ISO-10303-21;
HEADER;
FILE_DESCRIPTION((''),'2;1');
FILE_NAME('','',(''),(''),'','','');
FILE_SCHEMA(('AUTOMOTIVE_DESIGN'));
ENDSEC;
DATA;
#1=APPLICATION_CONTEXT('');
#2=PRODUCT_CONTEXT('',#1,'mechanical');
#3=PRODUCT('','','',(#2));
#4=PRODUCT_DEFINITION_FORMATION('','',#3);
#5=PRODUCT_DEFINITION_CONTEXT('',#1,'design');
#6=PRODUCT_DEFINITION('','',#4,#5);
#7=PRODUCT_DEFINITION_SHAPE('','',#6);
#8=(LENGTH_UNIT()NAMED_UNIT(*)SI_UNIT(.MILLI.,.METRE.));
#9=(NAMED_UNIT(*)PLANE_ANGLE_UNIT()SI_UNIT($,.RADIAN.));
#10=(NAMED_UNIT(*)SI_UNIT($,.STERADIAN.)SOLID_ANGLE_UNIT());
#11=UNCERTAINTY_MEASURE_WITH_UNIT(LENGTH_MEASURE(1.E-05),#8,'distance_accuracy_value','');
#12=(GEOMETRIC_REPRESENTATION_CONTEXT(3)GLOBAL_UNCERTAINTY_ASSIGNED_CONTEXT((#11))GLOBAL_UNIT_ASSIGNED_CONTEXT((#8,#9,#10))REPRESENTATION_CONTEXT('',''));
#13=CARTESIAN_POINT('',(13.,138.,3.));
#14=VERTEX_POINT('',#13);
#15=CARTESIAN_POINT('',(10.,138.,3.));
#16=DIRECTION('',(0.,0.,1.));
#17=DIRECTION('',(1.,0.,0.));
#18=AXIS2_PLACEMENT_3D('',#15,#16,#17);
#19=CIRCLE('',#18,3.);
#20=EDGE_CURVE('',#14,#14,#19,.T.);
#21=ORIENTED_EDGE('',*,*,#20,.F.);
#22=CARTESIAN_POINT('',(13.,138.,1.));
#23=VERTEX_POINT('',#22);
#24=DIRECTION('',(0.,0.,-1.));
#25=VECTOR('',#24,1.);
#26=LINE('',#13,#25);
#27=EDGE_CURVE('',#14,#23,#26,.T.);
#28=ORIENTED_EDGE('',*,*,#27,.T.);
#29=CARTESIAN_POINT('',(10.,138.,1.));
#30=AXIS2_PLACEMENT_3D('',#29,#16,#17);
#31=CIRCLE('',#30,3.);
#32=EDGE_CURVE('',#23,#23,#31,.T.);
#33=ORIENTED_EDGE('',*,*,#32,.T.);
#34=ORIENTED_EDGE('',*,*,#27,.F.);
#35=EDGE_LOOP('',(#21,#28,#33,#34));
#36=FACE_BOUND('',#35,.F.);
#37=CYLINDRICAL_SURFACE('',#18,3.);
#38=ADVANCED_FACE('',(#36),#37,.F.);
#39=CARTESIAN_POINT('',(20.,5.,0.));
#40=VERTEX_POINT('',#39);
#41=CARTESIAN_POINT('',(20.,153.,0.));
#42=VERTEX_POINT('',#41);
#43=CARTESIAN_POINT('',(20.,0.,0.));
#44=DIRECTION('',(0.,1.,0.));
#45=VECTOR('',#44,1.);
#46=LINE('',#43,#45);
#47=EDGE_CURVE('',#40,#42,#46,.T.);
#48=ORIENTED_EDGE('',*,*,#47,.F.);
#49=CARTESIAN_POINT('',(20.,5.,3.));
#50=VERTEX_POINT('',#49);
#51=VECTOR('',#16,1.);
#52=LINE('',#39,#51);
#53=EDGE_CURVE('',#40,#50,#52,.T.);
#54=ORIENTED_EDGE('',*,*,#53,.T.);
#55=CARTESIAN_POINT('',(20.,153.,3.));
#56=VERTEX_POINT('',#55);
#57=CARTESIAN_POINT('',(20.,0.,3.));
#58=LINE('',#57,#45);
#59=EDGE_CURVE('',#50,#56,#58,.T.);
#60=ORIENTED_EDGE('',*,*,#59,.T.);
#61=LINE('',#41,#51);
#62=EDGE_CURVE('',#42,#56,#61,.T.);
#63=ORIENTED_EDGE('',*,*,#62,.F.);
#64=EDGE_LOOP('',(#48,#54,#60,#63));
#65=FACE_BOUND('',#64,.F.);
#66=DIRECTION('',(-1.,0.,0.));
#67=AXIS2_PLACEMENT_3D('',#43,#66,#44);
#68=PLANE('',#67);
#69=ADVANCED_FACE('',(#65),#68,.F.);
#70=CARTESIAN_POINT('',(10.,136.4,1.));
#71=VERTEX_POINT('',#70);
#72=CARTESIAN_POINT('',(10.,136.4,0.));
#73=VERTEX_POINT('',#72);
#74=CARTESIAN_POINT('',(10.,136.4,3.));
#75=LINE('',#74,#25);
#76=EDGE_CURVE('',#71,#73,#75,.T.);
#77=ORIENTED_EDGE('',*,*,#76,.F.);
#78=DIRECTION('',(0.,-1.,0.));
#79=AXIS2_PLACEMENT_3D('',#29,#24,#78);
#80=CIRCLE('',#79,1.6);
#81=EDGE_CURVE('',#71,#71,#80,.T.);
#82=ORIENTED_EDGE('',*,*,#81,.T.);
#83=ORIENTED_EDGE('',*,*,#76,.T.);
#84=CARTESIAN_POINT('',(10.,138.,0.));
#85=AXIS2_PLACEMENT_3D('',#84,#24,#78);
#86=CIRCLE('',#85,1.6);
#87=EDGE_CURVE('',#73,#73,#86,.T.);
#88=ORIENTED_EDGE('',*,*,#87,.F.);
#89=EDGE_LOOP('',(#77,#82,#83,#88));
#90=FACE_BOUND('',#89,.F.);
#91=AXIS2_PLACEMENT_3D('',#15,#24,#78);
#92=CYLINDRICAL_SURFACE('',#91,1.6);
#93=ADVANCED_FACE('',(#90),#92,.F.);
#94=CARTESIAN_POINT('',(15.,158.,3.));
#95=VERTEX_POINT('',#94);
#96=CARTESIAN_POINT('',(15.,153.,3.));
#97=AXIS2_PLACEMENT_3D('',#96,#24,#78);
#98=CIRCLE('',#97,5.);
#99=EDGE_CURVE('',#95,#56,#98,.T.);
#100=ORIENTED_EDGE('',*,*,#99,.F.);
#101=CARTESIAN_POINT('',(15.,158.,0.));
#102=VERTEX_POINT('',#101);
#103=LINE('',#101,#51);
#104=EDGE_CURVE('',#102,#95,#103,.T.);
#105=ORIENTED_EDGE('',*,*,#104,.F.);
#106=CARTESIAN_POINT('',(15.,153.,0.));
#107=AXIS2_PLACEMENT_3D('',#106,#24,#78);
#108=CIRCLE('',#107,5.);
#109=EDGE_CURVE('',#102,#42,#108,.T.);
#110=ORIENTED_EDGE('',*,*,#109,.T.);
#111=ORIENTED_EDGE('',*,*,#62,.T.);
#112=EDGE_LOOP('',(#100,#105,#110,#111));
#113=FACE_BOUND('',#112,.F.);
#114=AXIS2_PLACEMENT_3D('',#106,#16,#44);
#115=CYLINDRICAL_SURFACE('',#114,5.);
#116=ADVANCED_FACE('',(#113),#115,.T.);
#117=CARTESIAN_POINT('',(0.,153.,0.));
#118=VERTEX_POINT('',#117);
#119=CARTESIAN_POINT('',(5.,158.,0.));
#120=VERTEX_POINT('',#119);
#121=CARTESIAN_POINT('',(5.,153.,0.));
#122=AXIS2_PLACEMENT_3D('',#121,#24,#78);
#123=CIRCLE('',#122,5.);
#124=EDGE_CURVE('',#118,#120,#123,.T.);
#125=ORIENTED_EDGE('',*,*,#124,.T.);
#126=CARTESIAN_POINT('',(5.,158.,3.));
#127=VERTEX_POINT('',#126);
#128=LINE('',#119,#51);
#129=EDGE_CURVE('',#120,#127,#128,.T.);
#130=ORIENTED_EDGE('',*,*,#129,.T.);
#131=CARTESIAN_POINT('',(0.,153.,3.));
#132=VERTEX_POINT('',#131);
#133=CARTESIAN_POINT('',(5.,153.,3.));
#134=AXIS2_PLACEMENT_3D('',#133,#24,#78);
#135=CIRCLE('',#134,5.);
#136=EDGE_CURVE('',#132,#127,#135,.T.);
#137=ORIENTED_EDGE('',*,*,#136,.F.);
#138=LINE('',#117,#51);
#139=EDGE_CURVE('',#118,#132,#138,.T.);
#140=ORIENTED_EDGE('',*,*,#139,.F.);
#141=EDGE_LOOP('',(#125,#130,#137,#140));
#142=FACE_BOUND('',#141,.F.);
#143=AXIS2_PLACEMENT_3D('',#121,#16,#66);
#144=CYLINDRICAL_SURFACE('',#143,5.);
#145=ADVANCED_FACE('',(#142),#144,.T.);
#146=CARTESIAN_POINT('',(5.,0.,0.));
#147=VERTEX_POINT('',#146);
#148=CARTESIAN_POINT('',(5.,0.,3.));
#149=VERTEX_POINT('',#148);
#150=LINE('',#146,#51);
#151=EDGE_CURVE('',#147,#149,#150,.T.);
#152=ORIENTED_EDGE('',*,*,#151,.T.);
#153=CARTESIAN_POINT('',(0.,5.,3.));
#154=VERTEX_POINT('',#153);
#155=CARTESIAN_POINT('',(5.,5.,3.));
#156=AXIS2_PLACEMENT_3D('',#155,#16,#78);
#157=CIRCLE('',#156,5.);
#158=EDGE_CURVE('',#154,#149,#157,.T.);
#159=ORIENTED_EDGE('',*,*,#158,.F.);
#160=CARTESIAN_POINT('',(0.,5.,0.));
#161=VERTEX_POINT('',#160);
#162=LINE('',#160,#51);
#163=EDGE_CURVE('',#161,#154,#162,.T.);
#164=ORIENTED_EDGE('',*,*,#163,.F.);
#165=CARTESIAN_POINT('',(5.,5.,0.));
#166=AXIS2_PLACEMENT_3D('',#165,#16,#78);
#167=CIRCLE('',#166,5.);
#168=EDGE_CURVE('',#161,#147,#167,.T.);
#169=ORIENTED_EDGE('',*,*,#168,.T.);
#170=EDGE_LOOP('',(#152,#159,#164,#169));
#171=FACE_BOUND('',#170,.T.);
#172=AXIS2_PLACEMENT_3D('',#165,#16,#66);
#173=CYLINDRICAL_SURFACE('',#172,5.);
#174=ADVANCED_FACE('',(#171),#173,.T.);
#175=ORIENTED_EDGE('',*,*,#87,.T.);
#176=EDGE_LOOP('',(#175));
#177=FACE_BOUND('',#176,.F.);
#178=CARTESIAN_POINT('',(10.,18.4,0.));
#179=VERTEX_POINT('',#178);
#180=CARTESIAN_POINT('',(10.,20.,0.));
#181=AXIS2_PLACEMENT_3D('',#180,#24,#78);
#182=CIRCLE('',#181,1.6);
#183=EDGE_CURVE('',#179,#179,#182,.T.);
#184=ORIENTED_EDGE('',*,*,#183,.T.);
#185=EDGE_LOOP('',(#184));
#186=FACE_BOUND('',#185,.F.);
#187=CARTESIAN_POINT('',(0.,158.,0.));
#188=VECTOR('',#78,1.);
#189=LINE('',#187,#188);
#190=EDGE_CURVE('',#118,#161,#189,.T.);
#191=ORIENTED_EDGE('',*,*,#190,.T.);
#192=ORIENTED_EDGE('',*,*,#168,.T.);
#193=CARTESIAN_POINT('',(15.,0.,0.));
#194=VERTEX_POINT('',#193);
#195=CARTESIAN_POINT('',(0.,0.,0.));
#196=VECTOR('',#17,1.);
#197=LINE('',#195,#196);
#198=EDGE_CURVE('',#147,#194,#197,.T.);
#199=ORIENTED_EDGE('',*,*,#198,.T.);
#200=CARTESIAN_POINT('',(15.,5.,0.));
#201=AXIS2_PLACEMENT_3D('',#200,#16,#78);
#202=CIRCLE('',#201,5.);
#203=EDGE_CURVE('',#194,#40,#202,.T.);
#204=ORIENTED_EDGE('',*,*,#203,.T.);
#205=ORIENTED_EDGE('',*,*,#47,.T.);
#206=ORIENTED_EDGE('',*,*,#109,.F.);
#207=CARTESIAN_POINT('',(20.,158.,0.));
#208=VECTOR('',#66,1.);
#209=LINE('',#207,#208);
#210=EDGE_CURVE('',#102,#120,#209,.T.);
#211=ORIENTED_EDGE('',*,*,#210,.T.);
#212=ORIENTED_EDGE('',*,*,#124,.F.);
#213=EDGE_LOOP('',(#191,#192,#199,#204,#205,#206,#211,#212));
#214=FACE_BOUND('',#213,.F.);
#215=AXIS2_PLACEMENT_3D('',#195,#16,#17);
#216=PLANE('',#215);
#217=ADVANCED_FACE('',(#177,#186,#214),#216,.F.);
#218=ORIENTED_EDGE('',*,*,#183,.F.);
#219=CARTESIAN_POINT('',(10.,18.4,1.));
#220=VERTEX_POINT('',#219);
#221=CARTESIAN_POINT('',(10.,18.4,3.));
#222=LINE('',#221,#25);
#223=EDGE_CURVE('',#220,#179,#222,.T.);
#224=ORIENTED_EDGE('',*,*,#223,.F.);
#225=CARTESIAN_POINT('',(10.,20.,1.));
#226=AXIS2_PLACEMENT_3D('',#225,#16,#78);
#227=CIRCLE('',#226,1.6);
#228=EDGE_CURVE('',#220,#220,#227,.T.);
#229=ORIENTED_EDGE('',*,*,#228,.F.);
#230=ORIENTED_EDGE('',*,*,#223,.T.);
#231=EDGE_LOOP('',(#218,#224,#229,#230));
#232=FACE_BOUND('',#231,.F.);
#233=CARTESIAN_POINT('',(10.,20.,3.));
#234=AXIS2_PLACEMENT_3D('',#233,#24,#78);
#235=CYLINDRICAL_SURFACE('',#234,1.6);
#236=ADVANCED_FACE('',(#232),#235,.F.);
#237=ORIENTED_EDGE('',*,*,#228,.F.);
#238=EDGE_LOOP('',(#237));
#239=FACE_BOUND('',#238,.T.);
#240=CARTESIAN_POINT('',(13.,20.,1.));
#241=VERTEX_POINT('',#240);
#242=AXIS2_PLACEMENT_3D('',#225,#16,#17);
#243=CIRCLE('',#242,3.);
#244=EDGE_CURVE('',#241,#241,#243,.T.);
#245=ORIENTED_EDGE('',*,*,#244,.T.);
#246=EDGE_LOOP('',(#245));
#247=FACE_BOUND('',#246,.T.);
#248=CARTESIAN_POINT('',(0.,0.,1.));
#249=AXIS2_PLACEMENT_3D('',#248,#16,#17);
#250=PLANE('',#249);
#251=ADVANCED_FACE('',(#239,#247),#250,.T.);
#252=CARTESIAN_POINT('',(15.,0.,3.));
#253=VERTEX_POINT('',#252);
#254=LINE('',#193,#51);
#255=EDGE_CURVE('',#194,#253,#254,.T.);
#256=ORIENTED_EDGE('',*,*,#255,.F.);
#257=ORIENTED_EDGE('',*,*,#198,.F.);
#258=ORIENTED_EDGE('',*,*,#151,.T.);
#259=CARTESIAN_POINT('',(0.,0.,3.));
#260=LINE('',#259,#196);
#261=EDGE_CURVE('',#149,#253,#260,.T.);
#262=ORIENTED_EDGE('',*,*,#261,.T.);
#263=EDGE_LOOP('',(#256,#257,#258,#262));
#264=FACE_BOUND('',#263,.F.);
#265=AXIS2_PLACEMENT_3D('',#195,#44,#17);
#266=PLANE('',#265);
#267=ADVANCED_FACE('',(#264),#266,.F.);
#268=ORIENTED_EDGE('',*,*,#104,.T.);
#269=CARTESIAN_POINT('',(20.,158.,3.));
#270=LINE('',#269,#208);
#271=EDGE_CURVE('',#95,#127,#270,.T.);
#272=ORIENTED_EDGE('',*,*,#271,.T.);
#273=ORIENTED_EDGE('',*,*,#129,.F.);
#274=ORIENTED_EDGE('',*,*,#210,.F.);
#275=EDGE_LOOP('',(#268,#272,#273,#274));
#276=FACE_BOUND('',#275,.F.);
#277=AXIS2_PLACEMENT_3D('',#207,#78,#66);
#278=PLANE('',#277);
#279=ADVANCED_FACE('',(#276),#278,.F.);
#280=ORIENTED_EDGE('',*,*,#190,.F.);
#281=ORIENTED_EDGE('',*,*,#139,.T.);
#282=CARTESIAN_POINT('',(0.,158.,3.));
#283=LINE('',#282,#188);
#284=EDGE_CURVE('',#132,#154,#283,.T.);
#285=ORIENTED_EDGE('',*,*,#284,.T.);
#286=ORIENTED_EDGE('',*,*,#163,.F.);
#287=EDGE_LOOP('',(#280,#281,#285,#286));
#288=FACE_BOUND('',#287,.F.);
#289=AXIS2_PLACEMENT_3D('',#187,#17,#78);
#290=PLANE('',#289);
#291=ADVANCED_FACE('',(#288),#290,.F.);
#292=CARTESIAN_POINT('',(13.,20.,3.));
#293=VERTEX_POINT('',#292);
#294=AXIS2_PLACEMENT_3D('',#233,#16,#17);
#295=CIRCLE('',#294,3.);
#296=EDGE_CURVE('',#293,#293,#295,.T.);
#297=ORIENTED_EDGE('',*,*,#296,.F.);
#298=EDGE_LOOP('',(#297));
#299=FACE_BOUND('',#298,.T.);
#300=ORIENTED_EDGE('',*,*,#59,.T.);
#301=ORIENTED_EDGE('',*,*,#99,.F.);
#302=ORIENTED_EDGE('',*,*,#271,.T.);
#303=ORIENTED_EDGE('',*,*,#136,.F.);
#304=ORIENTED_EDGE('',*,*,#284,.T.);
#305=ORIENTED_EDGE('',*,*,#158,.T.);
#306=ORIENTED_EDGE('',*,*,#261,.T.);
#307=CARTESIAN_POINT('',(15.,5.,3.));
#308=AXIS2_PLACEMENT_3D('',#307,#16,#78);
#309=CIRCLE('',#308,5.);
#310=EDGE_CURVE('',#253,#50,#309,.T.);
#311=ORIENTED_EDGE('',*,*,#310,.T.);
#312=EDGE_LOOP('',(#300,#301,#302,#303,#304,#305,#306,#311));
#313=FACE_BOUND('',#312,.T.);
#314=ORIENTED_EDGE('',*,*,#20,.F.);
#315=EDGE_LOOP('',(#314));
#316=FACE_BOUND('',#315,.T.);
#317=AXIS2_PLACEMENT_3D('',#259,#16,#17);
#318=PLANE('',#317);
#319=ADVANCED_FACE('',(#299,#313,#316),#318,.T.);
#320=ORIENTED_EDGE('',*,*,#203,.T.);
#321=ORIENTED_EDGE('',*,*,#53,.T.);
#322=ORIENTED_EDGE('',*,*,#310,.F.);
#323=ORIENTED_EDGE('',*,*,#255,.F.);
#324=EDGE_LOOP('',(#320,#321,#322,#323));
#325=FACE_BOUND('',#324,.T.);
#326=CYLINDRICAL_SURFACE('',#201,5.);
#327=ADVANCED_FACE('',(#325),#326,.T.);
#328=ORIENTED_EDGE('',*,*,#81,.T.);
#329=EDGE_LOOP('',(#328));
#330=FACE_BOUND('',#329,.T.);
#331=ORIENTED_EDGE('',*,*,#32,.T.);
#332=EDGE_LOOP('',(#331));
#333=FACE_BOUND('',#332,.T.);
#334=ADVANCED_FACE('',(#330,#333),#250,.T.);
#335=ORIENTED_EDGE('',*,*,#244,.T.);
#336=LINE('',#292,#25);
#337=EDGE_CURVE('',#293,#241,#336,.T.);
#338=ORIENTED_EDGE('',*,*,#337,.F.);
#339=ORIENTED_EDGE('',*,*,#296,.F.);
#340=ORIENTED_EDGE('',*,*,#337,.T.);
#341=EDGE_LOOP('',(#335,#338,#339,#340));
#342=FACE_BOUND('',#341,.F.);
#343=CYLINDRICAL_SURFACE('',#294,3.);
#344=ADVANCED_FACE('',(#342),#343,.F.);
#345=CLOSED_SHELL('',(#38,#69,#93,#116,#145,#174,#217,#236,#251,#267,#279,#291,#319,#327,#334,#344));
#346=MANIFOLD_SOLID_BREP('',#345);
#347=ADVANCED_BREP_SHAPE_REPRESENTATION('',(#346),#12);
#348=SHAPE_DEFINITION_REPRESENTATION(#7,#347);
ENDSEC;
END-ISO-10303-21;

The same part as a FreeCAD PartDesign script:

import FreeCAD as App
import Part
import Sketcher


def edges_at(feature, points):
    """Names of the edges that pass closest to the given points."""
    edges = feature.Shape.Edges
    near = lambda p: min(range(len(edges)), key=lambda i: edges[i].distToShape(Part.Vertex(*p))[0])
    return sorted({f"Edge{near(p) + 1}" for p in points})

doc = App.newDocument("Part")
body = doc.addObject("PartDesign::Body", "Body")

sketch1 = body.newObject("Sketcher::SketchObject", "Sketch")
sketch1.AttachmentSupport = (doc.getObject("XY_Plane"), [""])
sketch1.MapMode = "FlatFace"
sketch1.addGeometry([
    Part.LineSegment(App.Vector(0, 158, 0), App.Vector(0, 0, 0)),
    Part.LineSegment(App.Vector(0, 0, 0), App.Vector(20, 0, 0)),
    Part.LineSegment(App.Vector(20, 0, 0), App.Vector(20, 158, 0)),
    Part.LineSegment(App.Vector(20, 158, 0), App.Vector(0, 158, 0)),
], False)
sketch1.addConstraint([
    Sketcher.Constraint("Coincident", 0, 2, 1, 1),
    Sketcher.Constraint("Coincident", 1, 2, 2, 1),
    Sketcher.Constraint("Coincident", 2, 2, 3, 1),
    Sketcher.Constraint("Coincident", 3, 2, 0, 1),
    Sketcher.Constraint("Vertical", 0),
    Sketcher.Constraint("Horizontal", 1),
    Sketcher.Constraint("Vertical", 2),
    Sketcher.Constraint("Horizontal", 3),
    Sketcher.Constraint("Coincident", 0, 2, -1, 1),
    Sketcher.Constraint("DistanceX", 1, 1, 1, 2, 20.0),
    Sketcher.Constraint("DistanceY", 0, 2, 0, 1, 158.0),
])
pad1 = body.newObject("PartDesign::Pad", "Pad")
pad1.Profile = sketch1
pad1.Length = 3

sketch2 = body.newObject("Sketcher::SketchObject", "Sketch001")
sketch2.AttachmentSupport = (doc.getObject("XY_Plane"), [""])
sketch2.MapMode = "FlatFace"
sketch2.AttachmentOffset = App.Placement(App.Vector(0, 0, 3), App.Rotation())
sketch2.addGeometry([
    Part.Circle(App.Vector(10, 138, 0), App.Vector(0, 0, 1), 1.6),
    Part.Circle(App.Vector(10, 20, 0), App.Vector(0, 0, 1), 1.6),
], False)
sketch2.addConstraint([
    Sketcher.Constraint("Equal", 0, 1),
    Sketcher.Constraint("Vertical", 0, 3, 1, 3),
    Sketcher.Constraint("Diameter", 0, 3.2),
    Sketcher.Constraint("DistanceX", -1, 1, 0, 3, 10.0),
    Sketcher.Constraint("DistanceY", -1, 1, 0, 3, 138.0),
    Sketcher.Constraint("DistanceY", -1, 1, 1, 3, 20.0),
])
doc.recompute()
hole = body.newObject("PartDesign::Hole", "Hole")
hole.Profile = sketch2
hole.ThreadType = "None"
hole.Diameter = 3.2
hole.DepthType = "Dimension"
hole.Depth = 8
hole.DrillPoint = "Flat"

sketch3 = body.newObject("Sketcher::SketchObject", "Sketch002")
sketch3.AttachmentSupport = (doc.getObject("XY_Plane"), [""])
sketch3.MapMode = "FlatFace"
sketch3.AttachmentOffset = App.Placement(App.Vector(0, 0, 3), App.Rotation())
sketch3.addGeometry([
    Part.Circle(App.Vector(10, 138, 0), App.Vector(0, 0, 1), 3),
    Part.Circle(App.Vector(10, 20, 0), App.Vector(0, 0, 1), 3),
    Part.Circle(App.Vector(10, 20, 0), App.Vector(0, 0, 1), 1.6),
], False)
sketch3.addConstraint([
    Sketcher.Constraint("Coincident", 2, 3, 1, 3),
    Sketcher.Constraint("Equal", 0, 1),
    Sketcher.Constraint("Vertical", 0, 3, 1, 3),
    Sketcher.Constraint("Diameter", 0, 6.0),
    Sketcher.Constraint("Diameter", 2, 3.2),
    Sketcher.Constraint("DistanceX", -1, 1, 0, 3, 10.0),
    Sketcher.Constraint("DistanceY", -1, 1, 0, 3, 138.0),
    Sketcher.Constraint("DistanceY", -1, 1, 1, 3, 20.0),
])
pocket1 = body.newObject("PartDesign::Pocket", "Pocket")
pocket1.Profile = sketch3
pocket1.Length = 2
doc.recompute()

fillet = body.newObject("PartDesign::Fillet", "Fillet")
fillet.Base = (pocket1, edges_at(pocket1, [
    (0, 158, 1.5),
    (20, 158, 1.5),
    (0, 0, 1.5),
    (20, 0, 1.5),
]))
fillet.Radius = 5

doc.recompute()
